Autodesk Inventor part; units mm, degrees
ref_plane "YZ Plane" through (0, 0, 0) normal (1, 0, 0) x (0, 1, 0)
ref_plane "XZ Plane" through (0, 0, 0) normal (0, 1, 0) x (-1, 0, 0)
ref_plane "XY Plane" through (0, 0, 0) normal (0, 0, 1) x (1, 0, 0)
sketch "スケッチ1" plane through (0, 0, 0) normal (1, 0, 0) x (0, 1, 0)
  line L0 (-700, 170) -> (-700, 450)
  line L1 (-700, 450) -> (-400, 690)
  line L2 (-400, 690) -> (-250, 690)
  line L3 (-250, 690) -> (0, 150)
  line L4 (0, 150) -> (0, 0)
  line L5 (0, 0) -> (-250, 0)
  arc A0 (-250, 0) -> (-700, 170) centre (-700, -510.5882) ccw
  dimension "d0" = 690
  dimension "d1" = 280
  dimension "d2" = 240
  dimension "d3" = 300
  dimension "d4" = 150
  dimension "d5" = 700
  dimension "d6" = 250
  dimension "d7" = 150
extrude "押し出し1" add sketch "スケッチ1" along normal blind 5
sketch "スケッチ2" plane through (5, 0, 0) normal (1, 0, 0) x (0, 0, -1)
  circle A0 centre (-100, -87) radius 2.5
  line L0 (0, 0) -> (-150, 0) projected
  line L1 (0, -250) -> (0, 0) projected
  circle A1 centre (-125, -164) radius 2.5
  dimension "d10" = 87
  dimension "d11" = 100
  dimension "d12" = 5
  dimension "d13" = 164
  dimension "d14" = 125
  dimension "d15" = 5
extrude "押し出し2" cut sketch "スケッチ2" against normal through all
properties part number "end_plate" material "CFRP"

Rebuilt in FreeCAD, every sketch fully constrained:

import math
import FreeCAD as App
import Part
import Sketcher
from FreeCAD import Vector
Q = App.Units.Quantity

doc = App.newDocument("Part")
body = doc.addObject("PartDesign::Body", "Body")

# Sketch on YZ plane
sketch1 = doc.addObject("Sketcher::SketchObject", "Sketch")
body.addObject(sketch1)
sketch1.AttachmentSupport = (doc.YZ_Plane, [""])
sketch1.MapMode = "FlatFace"
sketch1.addGeometry(Part.LineSegment(Vector(-700, 450, 0), Vector(-700, 170, 0)), False)
sketch1.addGeometry(Part.ArcOfCircle(Part.Circle(Vector(-700, -511, 0), Vector(0, 0, 1), 681), math.radians(49), math.radians(90)), False)
sketch1.addGeometry(Part.LineSegment(Vector(-250, 0, 0), Vector(0, 0, 0)), False)
sketch1.addGeometry(Part.LineSegment(Vector(0, 0, 0), Vector(0, 150, 0)), False)
sketch1.addGeometry(Part.LineSegment(Vector(0, 150, 0), Vector(-250, 690, 0)), False)
sketch1.addGeometry(Part.LineSegment(Vector(-250, 690, 0), Vector(-400, 690, 0)), False)
sketch1.addGeometry(Part.LineSegment(Vector(-400, 690, 0), Vector(-700, 450, 0)), False)
sketch1.addConstraint(Sketcher.Constraint("Coincident", 0, 2, 1, 2))
sketch1.addConstraint(Sketcher.Constraint("Coincident", 1, 1, 2, 1))
sketch1.addConstraint(Sketcher.Constraint("Coincident", 2, 2, 3, 1))
sketch1.addConstraint(Sketcher.Constraint("Coincident", 3, 2, 4, 1))
sketch1.addConstraint(Sketcher.Constraint("Coincident", 4, 2, 5, 1))
sketch1.addConstraint(Sketcher.Constraint("Coincident", 5, 2, 6, 1))
sketch1.addConstraint(Sketcher.Constraint("Coincident", 6, 2, 0, 1))
sketch1.addConstraint(Sketcher.Constraint("Vertical", 0))
sketch1.addConstraint(Sketcher.Constraint("Horizontal", 2))
sketch1.addConstraint(Sketcher.Constraint("Vertical", 3))
sketch1.addConstraint(Sketcher.Constraint("Horizontal", 5))
sketch1.addConstraint(Sketcher.Constraint("Coincident", 2, 2, -1, 1))
sketch1.addConstraint(Sketcher.Constraint("Vertical", 1, 3, 0, 2))
sketch1.addConstraint(Sketcher.Constraint("Vertical", 1, 1, 4, 2))
sketch1.addConstraint(Sketcher.Constraint("Equal", 5, 3))
sketch1.addConstraint(Sketcher.Constraint("DistanceX", 2, 1, 2, 2, Q("250 mm")))
sketch1.addConstraint(Sketcher.Constraint("DistanceX", 5, 2, 5, 1, Q("150 mm")))
sketch1.addConstraint(Sketcher.Constraint("DistanceY", 0, 2, 0, 1, Q("280 mm")))
sketch1.addConstraint(Sketcher.Constraint("DistanceX", 1, 3, -1, 1, Q("700 mm")))
sketch1.addConstraint(Sketcher.Constraint("DistanceY", -1, 1, 4, 2, Q("690 mm")))
sketch1.addConstraint(Sketcher.Constraint("DistanceY", 6, 2, 5, 2, Q("240 mm")))
pad1 = doc.addObject("PartDesign::Pad", "Pad")
body.addObject(pad1)
pad1.Profile = sketch1
pad1.Length = 5

# Sketch on YZ plane
sketch2 = doc.addObject("Sketcher::SketchObject", "Sketch001")
body.addObject(sketch2)
sketch2.AttachmentSupport = (doc.YZ_Plane, [""])
sketch2.MapMode = "FlatFace"
sketch2.AttachmentOffset = App.Placement(Vector(0, 0, 5), App.Rotation())
sketch2.addGeometry(Part.Circle(Vector(-87, 100, 0), Vector(0, 0, 1), 2.5), False)
sketch2.addGeometry(Part.Circle(Vector(-164, 125, 0), Vector(0, 0, 1), 2.5), False)
sketch2.addConstraint(Sketcher.Constraint("Equal", 0, 1))
sketch2.addConstraint(Sketcher.Constraint("Diameter", 0, Q("5 mm")))
sketch2.addConstraint(Sketcher.Constraint("DistanceX", 0, 3, -1, 1, Q("87 mm")))
sketch2.addConstraint(Sketcher.Constraint("DistanceY", -1, 1, 0, 3, Q("100 mm")))
sketch2.addConstraint(Sketcher.Constraint("DistanceX", 1, 3, -1, 1, Q("164 mm")))
sketch2.addConstraint(Sketcher.Constraint("DistanceY", -1, 1, 1, 3, Q("125 mm")))
pocket1 = doc.addObject("PartDesign::Pocket", "Pocket")
body.addObject(pocket1)
pocket1.Profile = sketch2
pocket1.Type = "ThroughAll"

doc.recompute()
